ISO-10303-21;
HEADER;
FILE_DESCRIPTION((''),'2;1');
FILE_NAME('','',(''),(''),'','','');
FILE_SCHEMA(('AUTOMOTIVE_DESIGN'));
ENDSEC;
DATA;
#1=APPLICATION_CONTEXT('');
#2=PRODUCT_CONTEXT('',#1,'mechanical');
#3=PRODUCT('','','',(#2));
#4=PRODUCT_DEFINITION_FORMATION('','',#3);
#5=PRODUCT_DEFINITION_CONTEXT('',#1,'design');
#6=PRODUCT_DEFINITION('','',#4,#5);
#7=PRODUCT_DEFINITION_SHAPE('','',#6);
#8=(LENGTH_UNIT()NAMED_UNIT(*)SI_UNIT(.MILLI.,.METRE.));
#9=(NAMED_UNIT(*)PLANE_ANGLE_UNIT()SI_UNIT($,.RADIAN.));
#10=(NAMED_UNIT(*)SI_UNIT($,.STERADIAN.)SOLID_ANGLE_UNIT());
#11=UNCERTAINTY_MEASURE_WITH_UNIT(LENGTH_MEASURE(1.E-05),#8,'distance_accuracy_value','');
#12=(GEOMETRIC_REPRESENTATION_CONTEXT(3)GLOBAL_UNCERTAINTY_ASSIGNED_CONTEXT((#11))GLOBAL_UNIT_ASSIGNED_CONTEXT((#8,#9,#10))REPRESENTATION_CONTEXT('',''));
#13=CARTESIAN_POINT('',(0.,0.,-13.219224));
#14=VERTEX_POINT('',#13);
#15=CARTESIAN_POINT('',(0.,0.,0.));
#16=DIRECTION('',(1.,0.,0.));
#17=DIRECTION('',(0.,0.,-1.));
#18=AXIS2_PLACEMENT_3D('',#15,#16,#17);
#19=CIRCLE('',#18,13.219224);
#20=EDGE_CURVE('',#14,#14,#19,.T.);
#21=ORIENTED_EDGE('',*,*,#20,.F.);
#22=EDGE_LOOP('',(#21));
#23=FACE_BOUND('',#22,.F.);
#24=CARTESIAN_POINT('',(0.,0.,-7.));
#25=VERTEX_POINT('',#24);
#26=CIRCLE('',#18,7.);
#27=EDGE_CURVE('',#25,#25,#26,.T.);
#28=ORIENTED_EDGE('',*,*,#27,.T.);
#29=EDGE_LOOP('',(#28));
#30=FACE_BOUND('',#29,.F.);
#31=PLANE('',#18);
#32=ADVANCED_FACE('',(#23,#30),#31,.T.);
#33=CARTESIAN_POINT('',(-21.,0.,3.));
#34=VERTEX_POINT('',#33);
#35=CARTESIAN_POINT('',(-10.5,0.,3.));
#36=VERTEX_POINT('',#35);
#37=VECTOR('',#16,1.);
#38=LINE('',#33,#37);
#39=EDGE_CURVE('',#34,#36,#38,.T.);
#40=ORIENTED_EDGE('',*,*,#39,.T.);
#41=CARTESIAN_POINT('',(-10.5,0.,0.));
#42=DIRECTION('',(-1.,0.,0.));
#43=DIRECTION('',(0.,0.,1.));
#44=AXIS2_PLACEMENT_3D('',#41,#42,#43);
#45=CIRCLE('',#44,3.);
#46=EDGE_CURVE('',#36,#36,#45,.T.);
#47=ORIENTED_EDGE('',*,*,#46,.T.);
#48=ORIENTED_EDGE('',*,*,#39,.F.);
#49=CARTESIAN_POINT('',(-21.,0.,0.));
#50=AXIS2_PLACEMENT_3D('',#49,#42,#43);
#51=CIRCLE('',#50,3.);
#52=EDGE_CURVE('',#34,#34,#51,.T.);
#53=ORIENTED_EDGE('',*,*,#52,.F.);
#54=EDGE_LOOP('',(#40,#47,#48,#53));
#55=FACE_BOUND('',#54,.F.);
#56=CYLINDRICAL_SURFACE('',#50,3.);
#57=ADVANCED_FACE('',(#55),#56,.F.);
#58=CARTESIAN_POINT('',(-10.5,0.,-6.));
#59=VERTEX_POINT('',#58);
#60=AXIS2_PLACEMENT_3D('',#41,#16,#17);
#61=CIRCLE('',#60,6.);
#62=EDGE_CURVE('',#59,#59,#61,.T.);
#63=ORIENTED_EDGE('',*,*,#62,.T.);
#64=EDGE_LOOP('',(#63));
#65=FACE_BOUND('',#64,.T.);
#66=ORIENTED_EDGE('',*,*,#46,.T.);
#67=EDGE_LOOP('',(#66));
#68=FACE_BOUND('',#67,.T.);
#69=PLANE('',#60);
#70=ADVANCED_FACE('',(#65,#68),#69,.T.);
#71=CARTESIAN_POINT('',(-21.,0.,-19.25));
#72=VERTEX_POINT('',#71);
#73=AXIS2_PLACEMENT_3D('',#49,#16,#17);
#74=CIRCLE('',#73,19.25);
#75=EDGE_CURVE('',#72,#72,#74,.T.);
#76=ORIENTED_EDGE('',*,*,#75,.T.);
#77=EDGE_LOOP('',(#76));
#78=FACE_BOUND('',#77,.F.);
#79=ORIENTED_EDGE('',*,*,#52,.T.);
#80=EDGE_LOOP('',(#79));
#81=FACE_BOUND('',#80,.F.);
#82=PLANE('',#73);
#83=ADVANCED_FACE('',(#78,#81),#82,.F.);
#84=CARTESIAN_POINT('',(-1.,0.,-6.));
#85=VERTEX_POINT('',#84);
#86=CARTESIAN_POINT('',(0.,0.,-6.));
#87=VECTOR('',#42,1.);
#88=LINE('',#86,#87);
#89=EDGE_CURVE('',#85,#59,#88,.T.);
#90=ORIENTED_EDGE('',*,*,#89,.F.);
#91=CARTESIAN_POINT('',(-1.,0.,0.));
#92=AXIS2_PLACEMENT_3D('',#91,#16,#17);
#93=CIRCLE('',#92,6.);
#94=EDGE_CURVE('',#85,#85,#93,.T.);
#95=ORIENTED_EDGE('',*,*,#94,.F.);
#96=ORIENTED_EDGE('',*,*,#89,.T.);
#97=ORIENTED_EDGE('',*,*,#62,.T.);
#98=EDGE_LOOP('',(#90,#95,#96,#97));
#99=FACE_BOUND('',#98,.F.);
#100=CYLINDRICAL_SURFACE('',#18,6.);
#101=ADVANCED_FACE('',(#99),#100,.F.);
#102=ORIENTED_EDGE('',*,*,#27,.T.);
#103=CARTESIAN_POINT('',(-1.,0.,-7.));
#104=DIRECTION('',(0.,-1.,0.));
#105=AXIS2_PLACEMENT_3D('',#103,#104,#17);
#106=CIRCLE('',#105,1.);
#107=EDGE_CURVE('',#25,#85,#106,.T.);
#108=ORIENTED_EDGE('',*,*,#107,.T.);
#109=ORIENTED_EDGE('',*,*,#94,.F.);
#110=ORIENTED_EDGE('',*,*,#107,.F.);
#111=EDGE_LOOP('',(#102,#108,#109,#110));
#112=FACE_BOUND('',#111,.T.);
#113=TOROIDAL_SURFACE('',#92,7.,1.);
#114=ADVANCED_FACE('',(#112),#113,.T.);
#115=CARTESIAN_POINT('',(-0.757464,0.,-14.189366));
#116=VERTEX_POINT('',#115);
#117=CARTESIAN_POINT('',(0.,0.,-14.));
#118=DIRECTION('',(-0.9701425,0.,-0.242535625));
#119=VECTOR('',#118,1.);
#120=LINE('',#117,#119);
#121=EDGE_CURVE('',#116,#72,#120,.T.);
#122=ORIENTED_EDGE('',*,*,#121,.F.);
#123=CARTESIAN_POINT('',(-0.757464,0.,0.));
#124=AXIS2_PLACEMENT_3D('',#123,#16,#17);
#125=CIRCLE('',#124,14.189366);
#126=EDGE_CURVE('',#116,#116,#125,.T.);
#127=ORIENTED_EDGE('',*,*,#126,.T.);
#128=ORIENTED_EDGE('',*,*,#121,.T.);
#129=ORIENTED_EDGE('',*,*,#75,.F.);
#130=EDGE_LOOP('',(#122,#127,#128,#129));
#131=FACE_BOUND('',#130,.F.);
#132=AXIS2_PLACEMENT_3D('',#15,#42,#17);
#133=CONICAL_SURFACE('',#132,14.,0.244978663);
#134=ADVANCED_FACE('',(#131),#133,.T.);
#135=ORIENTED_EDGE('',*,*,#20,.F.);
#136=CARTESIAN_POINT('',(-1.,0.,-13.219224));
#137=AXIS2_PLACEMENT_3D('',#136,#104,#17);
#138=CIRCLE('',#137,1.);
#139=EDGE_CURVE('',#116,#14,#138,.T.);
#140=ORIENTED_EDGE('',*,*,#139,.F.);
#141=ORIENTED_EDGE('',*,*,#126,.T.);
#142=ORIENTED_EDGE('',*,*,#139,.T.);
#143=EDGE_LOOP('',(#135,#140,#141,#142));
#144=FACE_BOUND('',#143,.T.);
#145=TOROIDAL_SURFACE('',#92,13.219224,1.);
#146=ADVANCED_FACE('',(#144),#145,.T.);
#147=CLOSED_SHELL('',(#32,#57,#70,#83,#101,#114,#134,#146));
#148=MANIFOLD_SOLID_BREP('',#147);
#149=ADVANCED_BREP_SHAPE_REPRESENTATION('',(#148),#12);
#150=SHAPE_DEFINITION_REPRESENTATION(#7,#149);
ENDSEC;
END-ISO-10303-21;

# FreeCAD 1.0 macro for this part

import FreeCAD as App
import Part
import Sketcher


def edges_at(feature, points):
    """Names of the edges that pass closest to the given points."""
    edges = feature.Shape.Edges
    near = lambda p: min(range(len(edges)), key=lambda i: edges[i].distToShape(Part.Vertex(*p))[0])
    return sorted({f"Edge{near(p) + 1}" for p in points})

doc = App.newDocument("Part")
params = doc.addObject("Spreadsheet::Sheet", "Params")
for row, (alias, value) in enumerate([
    ("sketch1_width", "21 mm"),
    ("sketch1_height", "14 mm"),
    ("sketch1_height2", "19.25 mm"),
    ("revolution_angle", "360 deg"),
    ("sketch2_diameter", "6 mm"),
    ("sketch3_diameter", "12 mm"),
    ("pocket2_length", "10.5 mm"),
    ("fillet_radius", "1 mm"),
], start=1):
    params.set(f"A{row}", alias)
    params.set(f"B{row}", "=" + value)
    params.setAlias(f"B{row}", alias)

body = doc.addObject("PartDesign::Body", "Body")

sketch1 = doc.addObject("Sketcher::SketchObject", "Sketch")
body.addObject(sketch1)
sketch1.AttachmentSupport = (doc.XZ_Plane, [""])
sketch1.MapMode = "FlatFace"
sketch1.addGeometry(Part.LineSegment(App.Vector(-21, 0, 0), App.Vector(0, 0, 0)), False)
sketch1.addGeometry(Part.LineSegment(App.Vector(0, 0, 0), App.Vector(0, -14, 0)), False)
sketch1.addGeometry(Part.LineSegment(App.Vector(0, -14, 0), App.Vector(-21, -19, 0)), False)
sketch1.addGeometry(Part.LineSegment(App.Vector(-21, -19, 0), App.Vector(-21, 0, 0)), False)
sketch1.addConstraint(Sketcher.Constraint("Coincident", 0, 2, 1, 1))
sketch1.addConstraint(Sketcher.Constraint("Coincident", 1, 2, 2, 1))
sketch1.addConstraint(Sketcher.Constraint("Coincident", 2, 2, 3, 1))
sketch1.addConstraint(Sketcher.Constraint("Coincident", 3, 2, 0, 1))
sketch1.addConstraint(Sketcher.Constraint("Horizontal", 0))
sketch1.addConstraint(Sketcher.Constraint("Vertical", 1))
sketch1.addConstraint(Sketcher.Constraint("Vertical", 3))
sketch1.addConstraint(Sketcher.Constraint("Coincident", 0, 2, -1, 1))
sketch1.addConstraint(Sketcher.Constraint("DistanceX", 0, 1, 0, 2, 21.0))
sketch1.addConstraint(Sketcher.Constraint("DistanceY", 1, 2, 1, 1, 14.0))
sketch1.addConstraint(Sketcher.Constraint("DistanceY", 3, 1, 3, 2, 19.25))
sketch1.setExpression("Constraints[8]", "Params.sketch1_width")
sketch1.setExpression("Constraints[9]", "Params.sketch1_height")
sketch1.setExpression("Constraints[10]", "Params.sketch1_height2")
revolution = doc.addObject("PartDesign::Revolution", "Revolution")
body.addObject(revolution)
revolution.Profile = sketch1
revolution.ReferenceAxis = (sketch1, ["H_Axis"])
revolution.setExpression("Angle", "Params.revolution_angle")

sketch2 = doc.addObject("Sketcher::SketchObject", "Sketch001")
body.addObject(sketch2)
sketch2.AttachmentSupport = (doc.YZ_Plane, [""])
sketch2.MapMode = "FlatFace"
sketch2.AttachmentOffset = App.Placement(App.Vector(0, 0, -21), App.Rotation())
sketch2.addGeometry(Part.Circle(App.Vector(0, 0, 0), App.Vector(0, 0, 1), 3), False)
sketch2.addConstraint(Sketcher.Constraint("Coincident", 0, 3, -1, 1))
sketch2.addConstraint(Sketcher.Constraint("Diameter", 0, 6.0))
sketch2.setExpression("Constraints[1]", "Params.sketch2_diameter")
pocket1 = doc.addObject("PartDesign::Pocket", "Pocket")
body.addObject(pocket1)
pocket1.Profile = sketch2
pocket1.Type = "ThroughAll"
pocket1.Reversed = True

sketch3 = doc.addObject("Sketcher::SketchObject", "Sketch002")
body.addObject(sketch3)
sketch3.AttachmentSupport = (doc.YZ_Plane, [""])
sketch3.MapMode = "FlatFace"
sketch3.addGeometry(Part.Circle(App.Vector(0, 0, 0), App.Vector(0, 0, 1), 6), False)
sketch3.addConstraint(Sketcher.Constraint("Coincident", 0, 3, -1, 1))
sketch3.addConstraint(Sketcher.Constraint("Diameter", 0, 12.0))
sketch3.setExpression("Constraints[1]", "Params.sketch3_diameter")
pocket2 = doc.addObject("PartDesign::Pocket", "Pocket001")
body.addObject(pocket2)
pocket2.Profile = sketch3
pocket2.setExpression("Length", "Params.pocket2_length")
doc.recompute()

fillet = doc.addObject("PartDesign::Fillet", "Fillet")
body.addObject(fillet)
fillet.Base = (pocket2, edges_at(pocket2, [(0, 0, 14), (0, 0, 6)]))
fillet.setExpression("Radius", "Params.fillet_radius")

doc.recompute()
